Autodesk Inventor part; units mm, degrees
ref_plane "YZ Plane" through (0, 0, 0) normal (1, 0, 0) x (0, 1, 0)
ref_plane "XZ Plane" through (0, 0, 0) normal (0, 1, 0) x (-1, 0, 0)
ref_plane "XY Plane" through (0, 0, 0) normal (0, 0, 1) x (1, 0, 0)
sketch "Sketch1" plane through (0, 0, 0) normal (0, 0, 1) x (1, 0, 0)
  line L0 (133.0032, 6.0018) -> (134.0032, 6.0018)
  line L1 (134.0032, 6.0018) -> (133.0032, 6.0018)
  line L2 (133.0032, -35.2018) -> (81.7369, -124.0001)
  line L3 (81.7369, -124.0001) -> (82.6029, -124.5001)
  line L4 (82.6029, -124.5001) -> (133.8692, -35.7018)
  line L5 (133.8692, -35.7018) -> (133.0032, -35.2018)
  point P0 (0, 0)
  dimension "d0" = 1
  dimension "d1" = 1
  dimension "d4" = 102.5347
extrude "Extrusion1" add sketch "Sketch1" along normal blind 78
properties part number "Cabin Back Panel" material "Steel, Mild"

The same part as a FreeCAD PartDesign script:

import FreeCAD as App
import Part
import Sketcher
Q = App.Units.Quantity


def add_polygon(sketch, points):
    """Adds a closed chain of lines whose ends are joined by coincident constraints."""
    first, n = sketch.GeometryCount, len(points)
    for a, b in zip(points, points[1:] + points[:1]):
        sketch.addGeometry(Part.LineSegment(App.Vector(*a, 0), App.Vector(*b, 0)), False)
    for i in range(n):
        sketch.addConstraint(Sketcher.Constraint("Coincident", first + i, 2, first + (i + 1) % n, 1))

doc = App.newDocument("Part")
body = doc.addObject("PartDesign::Body", "Body")

sketch1 = body.newObject("Sketcher::SketchObject", "Sketch")
sketch1.AttachmentSupport = (doc.getObject("XY_Plane"), [""])
sketch1.MapMode = "FlatFace"
add_polygon(sketch1, [(133.8692, -35.7018), (133.0032, -35.2018), (81.7369, -124.0001), (82.6029, -124.5001)])
sketch1.addConstraint([
    Sketcher.Constraint("Distance", 0, Q("1 mm")),
    Sketcher.Constraint("Distance", 2, Q("1 mm")),
    Sketcher.Constraint("DistanceY", 1, 2, -1, 1, Q("124 mm")),
    Sketcher.Constraint("Distance", 1, Q("102.5347 mm")),
    Sketcher.Constraint("Distance", 3, Q("102.5347 mm")),
    Sketcher.Constraint("DistanceY", 2, 2, -1, 1, Q("124.5 mm")),
    Sketcher.Constraint("DistanceX", -1, 1, 1, 2, Q("81.737 mm")),
    Sketcher.Constraint("DistanceX", -1, 1, 0, 2, Q("133.0032 mm")),
])
pad1 = body.newObject("PartDesign::Pad", "Pad")
pad1.Profile = sketch1
pad1.Length = 78

doc.recompute()
